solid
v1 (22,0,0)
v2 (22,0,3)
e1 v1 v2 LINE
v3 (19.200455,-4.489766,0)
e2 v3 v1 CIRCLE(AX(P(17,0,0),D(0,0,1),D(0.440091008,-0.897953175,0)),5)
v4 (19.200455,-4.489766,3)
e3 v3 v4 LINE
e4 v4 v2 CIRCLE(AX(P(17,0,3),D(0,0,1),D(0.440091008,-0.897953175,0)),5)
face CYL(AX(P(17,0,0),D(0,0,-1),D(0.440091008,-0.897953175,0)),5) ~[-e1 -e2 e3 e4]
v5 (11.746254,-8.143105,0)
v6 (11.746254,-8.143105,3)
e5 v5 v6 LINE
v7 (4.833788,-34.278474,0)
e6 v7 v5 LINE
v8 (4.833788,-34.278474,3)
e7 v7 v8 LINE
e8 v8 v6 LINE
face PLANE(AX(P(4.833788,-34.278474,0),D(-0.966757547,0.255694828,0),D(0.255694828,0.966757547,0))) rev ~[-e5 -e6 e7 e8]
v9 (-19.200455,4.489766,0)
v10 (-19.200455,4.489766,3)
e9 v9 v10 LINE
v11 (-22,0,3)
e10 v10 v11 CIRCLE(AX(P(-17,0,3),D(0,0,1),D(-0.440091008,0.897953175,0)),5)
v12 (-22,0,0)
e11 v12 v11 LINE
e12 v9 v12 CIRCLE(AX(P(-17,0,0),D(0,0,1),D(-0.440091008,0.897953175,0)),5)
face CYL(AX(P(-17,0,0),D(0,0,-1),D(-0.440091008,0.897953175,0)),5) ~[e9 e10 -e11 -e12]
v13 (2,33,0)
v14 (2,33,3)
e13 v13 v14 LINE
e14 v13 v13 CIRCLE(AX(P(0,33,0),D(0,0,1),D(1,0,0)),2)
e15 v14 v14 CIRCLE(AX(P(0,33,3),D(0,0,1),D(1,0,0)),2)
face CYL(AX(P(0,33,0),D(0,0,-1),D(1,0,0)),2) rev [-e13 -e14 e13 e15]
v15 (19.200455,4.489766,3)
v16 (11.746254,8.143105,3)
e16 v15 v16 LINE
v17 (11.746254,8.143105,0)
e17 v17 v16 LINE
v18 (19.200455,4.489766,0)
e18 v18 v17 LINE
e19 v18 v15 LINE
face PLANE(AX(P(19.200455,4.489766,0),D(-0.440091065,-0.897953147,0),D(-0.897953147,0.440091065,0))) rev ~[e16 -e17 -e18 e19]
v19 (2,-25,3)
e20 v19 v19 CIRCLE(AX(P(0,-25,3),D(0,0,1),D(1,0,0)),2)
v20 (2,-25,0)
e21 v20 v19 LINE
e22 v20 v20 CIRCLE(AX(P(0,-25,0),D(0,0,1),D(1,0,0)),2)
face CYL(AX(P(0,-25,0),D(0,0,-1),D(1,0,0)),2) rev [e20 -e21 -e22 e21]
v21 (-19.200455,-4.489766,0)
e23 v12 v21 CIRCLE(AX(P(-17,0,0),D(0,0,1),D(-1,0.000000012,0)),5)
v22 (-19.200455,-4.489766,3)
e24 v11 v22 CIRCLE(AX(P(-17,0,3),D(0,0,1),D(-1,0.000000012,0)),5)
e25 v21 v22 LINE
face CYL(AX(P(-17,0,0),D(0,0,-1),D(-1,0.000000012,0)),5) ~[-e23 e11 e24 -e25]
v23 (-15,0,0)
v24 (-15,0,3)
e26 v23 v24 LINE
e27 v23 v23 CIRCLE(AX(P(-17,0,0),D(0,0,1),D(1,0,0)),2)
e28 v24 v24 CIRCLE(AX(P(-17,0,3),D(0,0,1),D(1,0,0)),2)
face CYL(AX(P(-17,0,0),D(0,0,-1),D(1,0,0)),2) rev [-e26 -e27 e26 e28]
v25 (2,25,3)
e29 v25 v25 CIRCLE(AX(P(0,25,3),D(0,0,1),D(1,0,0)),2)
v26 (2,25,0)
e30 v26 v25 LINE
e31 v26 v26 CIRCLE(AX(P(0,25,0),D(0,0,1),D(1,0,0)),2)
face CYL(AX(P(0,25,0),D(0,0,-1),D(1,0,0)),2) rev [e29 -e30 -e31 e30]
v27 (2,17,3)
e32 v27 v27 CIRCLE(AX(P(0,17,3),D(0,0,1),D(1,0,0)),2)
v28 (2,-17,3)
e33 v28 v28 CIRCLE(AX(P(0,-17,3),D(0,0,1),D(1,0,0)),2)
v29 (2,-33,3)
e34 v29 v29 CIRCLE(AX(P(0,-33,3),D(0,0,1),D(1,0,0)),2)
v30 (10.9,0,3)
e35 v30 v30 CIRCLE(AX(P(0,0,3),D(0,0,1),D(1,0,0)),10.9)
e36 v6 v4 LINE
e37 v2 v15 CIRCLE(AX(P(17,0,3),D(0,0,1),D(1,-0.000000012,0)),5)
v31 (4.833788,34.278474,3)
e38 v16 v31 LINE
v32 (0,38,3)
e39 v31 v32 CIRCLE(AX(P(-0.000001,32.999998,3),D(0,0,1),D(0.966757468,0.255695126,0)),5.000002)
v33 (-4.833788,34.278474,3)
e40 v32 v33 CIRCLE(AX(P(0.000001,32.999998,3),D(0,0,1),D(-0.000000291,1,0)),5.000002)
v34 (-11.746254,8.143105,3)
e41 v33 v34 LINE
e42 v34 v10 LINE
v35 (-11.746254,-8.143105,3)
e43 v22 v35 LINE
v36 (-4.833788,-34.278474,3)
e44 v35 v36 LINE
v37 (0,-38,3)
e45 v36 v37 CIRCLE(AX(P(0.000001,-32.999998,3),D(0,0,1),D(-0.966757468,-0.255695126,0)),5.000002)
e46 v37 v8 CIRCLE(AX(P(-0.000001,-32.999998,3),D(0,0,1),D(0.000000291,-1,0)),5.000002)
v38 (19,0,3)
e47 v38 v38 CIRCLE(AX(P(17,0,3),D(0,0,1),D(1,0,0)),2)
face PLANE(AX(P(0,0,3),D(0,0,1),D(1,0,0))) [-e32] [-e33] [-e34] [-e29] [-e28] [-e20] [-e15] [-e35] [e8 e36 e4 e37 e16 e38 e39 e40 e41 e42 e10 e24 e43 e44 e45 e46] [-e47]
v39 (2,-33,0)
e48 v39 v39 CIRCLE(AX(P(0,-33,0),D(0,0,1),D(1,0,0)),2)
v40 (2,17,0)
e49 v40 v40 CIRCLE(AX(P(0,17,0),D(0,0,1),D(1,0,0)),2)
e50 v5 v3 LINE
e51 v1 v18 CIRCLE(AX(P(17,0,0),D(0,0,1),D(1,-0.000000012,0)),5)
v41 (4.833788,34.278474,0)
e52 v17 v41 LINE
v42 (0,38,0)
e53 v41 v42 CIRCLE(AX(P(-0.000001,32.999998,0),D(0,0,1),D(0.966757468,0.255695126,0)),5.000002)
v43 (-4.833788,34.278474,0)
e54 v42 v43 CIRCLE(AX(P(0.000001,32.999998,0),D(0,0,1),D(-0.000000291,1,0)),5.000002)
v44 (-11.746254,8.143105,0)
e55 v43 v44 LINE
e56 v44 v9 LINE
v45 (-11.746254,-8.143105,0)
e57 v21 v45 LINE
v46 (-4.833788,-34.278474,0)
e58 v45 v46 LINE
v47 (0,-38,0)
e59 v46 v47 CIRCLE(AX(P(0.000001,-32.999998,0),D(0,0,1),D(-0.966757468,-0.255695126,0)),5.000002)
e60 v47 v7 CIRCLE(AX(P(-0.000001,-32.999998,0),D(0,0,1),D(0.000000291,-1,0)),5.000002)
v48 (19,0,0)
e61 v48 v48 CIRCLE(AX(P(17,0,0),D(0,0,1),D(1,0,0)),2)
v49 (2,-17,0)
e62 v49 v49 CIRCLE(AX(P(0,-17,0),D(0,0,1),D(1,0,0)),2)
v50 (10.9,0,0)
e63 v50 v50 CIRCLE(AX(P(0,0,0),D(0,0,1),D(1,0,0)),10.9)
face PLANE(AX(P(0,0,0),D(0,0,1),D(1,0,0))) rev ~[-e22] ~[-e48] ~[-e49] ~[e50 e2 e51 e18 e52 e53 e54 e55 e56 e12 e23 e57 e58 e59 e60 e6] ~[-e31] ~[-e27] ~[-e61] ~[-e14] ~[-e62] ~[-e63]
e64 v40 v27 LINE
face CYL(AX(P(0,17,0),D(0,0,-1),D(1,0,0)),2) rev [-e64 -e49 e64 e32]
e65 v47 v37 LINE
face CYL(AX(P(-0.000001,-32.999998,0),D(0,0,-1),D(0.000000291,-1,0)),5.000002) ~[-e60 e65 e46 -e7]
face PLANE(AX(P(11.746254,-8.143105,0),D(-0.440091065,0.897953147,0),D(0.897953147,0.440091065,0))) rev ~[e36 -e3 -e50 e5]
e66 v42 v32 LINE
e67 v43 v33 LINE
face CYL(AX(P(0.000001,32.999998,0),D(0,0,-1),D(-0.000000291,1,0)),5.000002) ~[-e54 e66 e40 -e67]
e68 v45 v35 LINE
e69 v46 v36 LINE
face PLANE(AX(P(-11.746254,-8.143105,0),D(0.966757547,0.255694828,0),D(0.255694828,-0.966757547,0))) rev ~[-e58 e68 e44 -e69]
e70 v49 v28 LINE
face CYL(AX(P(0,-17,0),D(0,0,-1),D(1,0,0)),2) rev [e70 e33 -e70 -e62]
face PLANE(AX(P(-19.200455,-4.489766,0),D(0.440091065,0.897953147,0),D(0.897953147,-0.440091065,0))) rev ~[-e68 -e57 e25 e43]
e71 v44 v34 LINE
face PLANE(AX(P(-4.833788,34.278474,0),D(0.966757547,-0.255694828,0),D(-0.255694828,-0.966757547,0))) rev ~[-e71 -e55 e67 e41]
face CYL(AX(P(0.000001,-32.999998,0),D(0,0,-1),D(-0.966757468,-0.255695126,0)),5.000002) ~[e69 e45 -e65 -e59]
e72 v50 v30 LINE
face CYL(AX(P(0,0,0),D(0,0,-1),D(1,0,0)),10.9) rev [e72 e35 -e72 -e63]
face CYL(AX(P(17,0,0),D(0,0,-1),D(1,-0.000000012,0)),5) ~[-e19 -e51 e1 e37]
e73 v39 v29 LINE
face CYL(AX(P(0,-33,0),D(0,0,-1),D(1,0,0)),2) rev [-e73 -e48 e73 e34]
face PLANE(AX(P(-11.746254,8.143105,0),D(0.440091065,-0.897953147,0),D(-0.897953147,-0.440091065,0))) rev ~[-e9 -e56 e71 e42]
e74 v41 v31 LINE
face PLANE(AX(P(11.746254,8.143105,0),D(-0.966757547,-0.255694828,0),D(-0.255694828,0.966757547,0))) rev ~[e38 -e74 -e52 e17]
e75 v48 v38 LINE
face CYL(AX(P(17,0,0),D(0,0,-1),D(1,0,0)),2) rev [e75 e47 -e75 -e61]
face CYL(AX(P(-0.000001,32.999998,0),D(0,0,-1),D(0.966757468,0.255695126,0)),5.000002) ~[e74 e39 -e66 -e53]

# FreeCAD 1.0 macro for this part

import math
import FreeCAD as App
import Part
import Sketcher

V = App.Vector
Q = App.Units.Quantity

doc = App.newDocument("Part")
params = doc.addObject("Spreadsheet::Sheet", "Params")
for row, (alias, value) in enumerate([
    ("sketch1_diameter", "4 mm"),
    ("sketch1_radius", "5 mm"),
    ("sketch1_diameter2", "21.8 mm"),
    ("pad1_length", "3 mm"),
], start=1):
    params.set(f"A{row}", alias)
    params.set(f"B{row}", "=" + value)
    params.setAlias(f"B{row}", alias)

body = doc.addObject("PartDesign::Body", "Body")

# Sketch on XY plane
sketch1 = body.newObject("Sketcher::SketchObject", "Sketch")
sketch1.AttachmentSupport = (doc.getObject("XY_Plane"), [""])
sketch1.MapMode = "FlatFace"
sketch1.addGeometry(Part.LineSegment(V(-4.8, 34.3, 0), V(-11.7, 8.1, 0)), False)
sketch1.addGeometry(Part.LineSegment(V(-11.7, 8.1, 0), V(-19.2, 4.5, 0)), False)
sketch1.addGeometry(Part.ArcOfCircle(Part.Circle(V(-17, 0, 0), V(0, 0, 1), 5), math.radians(116), math.radians(180)), False)
sketch1.addGeometry(Part.ArcOfCircle(Part.Circle(V(-17, 0, 0), V(0, 0, 1), 5), math.radians(180), math.radians(244)), False)
sketch1.addGeometry(Part.LineSegment(V(-19.2, -4.5, 0), V(-11.7, -8.1, 0)), False)
sketch1.addGeometry(Part.LineSegment(V(-11.7, -8.1, 0), V(-4.8, -34.3, 0)), False)
sketch1.addGeometry(Part.ArcOfCircle(Part.Circle(V(0, -33, 0), V(0, 0, 1), 5), math.radians(-165), math.radians(-90)), False)
sketch1.addGeometry(Part.ArcOfCircle(Part.Circle(V(0, -33, 0), V(0, 0, 1), 5), math.radians(-90), math.radians(-15)), False)
sketch1.addGeometry(Part.LineSegment(V(4.8, -34.3, 0), V(11.7, -8.1, 0)), False)
sketch1.addGeometry(Part.LineSegment(V(11.7, -8.1, 0), V(19.2, -4.5, 0)), False)
sketch1.addGeometry(Part.ArcOfCircle(Part.Circle(V(17, 0, 0), V(0, 0, 1), 5), math.radians(-64), math.radians(0)), False)
sketch1.addGeometry(Part.ArcOfCircle(Part.Circle(V(17, 0, 0), V(0, 0, 1), 5), math.radians(0), math.radians(64)), False)
sketch1.addGeometry(Part.LineSegment(V(19.2, 4.5, 0), V(11.7, 8.1, 0)), False)
sketch1.addGeometry(Part.LineSegment(V(11.7, 8.1, 0), V(4.8, 34.3, 0)), False)
sketch1.addGeometry(Part.ArcOfCircle(Part.Circle(V(0, 33, 0), V(0, 0, 1), 5), math.radians(15), math.radians(90)), False)
sketch1.addGeometry(Part.ArcOfCircle(Part.Circle(V(0, 33, 0), V(0, 0, 1), 5), math.radians(90), math.radians(165)), False)
sketch1.addGeometry(Part.Circle(V(0, -33, 0), V(0, 0, 1), 2), False)
sketch1.addGeometry(Part.Circle(V(0, -25, 0), V(0, 0, 1), 2), False)
sketch1.addGeometry(Part.Circle(V(0, -17, 0), V(0, 0, 1), 2), False)
sketch1.addGeometry(Part.Circle(V(-17, 0, 0), V(0, 0, 1), 2), False)
sketch1.addGeometry(Part.Circle(V(0, 0, 0), V(0, 0, 1), 10.9), False)
sketch1.addGeometry(Part.Circle(V(0, 17, 0), V(0, 0, 1), 2), False)
sketch1.addGeometry(Part.Circle(V(17, 0, 0), V(0, 0, 1), 2), False)
sketch1.addGeometry(Part.Circle(V(0, 25, 0), V(0, 0, 1), 2), False)
sketch1.addGeometry(Part.Circle(V(0, 33, 0), V(0, 0, 1), 2), False)
sketch1.addConstraint(Sketcher.Constraint("Coincident", 0, 2, 1, 1))
sketch1.addConstraint(Sketcher.Constraint("Tangent", 1, 2, 2, 1))
sketch1.addConstraint(Sketcher.Constraint("Tangent", 2, 2, 3, 1))
sketch1.addConstraint(Sketcher.Constraint("Tangent", 3, 2, 4, 1))
sketch1.addConstraint(Sketcher.Constraint("Coincident", 4, 2, 5, 1))
sketch1.addConstraint(Sketcher.Constraint("Tangent", 5, 2, 6, 1))
sketch1.addConstraint(Sketcher.Constraint("Tangent", 6, 2, 7, 1))
sketch1.addConstraint(Sketcher.Constraint("Tangent", 7, 2, 8, 1))
sketch1.addConstraint(Sketcher.Constraint("Coincident", 8, 2, 9, 1))
sketch1.addConstraint(Sketcher.Constraint("Tangent", 9, 2, 10, 1))
sketch1.addConstraint(Sketcher.Constraint("Tangent", 10, 2, 11, 1))
sketch1.addConstraint(Sketcher.Constraint("Tangent", 11, 2, 12, 1))
sketch1.addConstraint(Sketcher.Constraint("Coincident", 12, 2, 13, 1))
sketch1.addConstraint(Sketcher.Constraint("Tangent", 13, 2, 14, 1))
sketch1.addConstraint(Sketcher.Constraint("Tangent", 14, 2, 15, 1))
sketch1.addConstraint(Sketcher.Constraint("Tangent", 15, 2, 0, 1))
sketch1.addConstraint(Sketcher.Constraint("Coincident", 20, 3, -1, 1))
sketch1.addConstraint(Sketcher.Constraint("Coincident", 16, 3, 6, 3))
sketch1.addConstraint(Sketcher.Constraint("Coincident", 19, 3, 2, 3))
sketch1.addConstraint(Sketcher.Constraint("Coincident", 22, 3, 10, 3))
sketch1.addConstraint(Sketcher.Constraint("Coincident", 24, 3, 14, 3))
sketch1.addConstraint(Sketcher.Constraint("Equal", 2, 3))
sketch1.addConstraint(Sketcher.Constraint("Equal", 6, 7))
sketch1.addConstraint(Sketcher.Constraint("Equal", 3, 10))
sketch1.addConstraint(Sketcher.Constraint("Equal", 10, 11))
sketch1.addConstraint(Sketcher.Constraint("Equal", 7, 14))
sketch1.addConstraint(Sketcher.Constraint("Equal", 14, 15))
sketch1.addConstraint(Sketcher.Constraint("Equal", 16, 17))
sketch1.addConstraint(Sketcher.Constraint("Equal", 17, 18))
sketch1.addConstraint(Sketcher.Constraint("Equal", 18, 19))
sketch1.addConstraint(Sketcher.Constraint("Equal", 19, 21))
sketch1.addConstraint(Sketcher.Constraint("Equal", 21, 22))
sketch1.addConstraint(Sketcher.Constraint("Equal", 22, 23))
sketch1.addConstraint(Sketcher.Constraint("Equal", 23, 24))
sketch1.addConstraint(Sketcher.Constraint("Symmetric", 2, 3, 10, 3, -1, 1))
sketch1.addConstraint(Sketcher.Constraint("Symmetric", 6, 3, 14, 3, -1, 1))
sketch1.addConstraint(Sketcher.Constraint("Symmetric", 18, 3, 21, 3, -1, 1))
sketch1.addConstraint(Sketcher.Constraint("Symmetric", 17, 3, 23, 3, -1, 1))
sketch1.addConstraint(Sketcher.Constraint("Symmetric", 0, 2, 8, 2, -1, 1))
sketch1.addConstraint(Sketcher.Constraint("Symmetric", 4, 2, 12, 2, -1, 1))
sketch1.addConstraint(Sketcher.Constraint("Symmetric", 5, 2, 7, 2, -2))
sketch1.addConstraint(Sketcher.Constraint("Symmetric", 3, 2, 9, 2, -2))
sketch1.addConstraint(Sketcher.Constraint("PointOnObject", 17, 3, -2))
sketch1.addConstraint(Sketcher.Constraint("PointOnObject", 18, 3, -2))
sketch1.addConstraint(Sketcher.Constraint("PointOnObject", 2, 2, -1))
sketch1.addConstraint(Sketcher.Constraint("PointOnObject", 6, 2, -2))
sketch1.addConstraint(Sketcher.Constraint("PointOnObject", 10, 2, -1))
sketch1.addConstraint(Sketcher.Constraint("PointOnObject", 14, 2, -2))
sketch1.addConstraint(Sketcher.Constraint("Diameter", 16, Q("4 mm")))
sketch1.addConstraint(Sketcher.Constraint("Radius", 2, Q("5 mm")))
sketch1.addConstraint(Sketcher.Constraint("Diameter", 20, Q("21.8 mm")))
sketch1.addConstraint(Sketcher.Constraint("DistanceX", 2, 3, -1, 1, Q("17 mm")))
sketch1.addConstraint(Sketcher.Constraint("DistanceY", 16, 3, -1, 1, Q("33 mm")))
sketch1.addConstraint(Sketcher.Constraint("DistanceY", 17, 3, -1, 1, Q("25 mm")))
sketch1.addConstraint(Sketcher.Constraint("DistanceY", 18, 3, -1, 1, Q("17 mm")))
sketch1.addConstraint(Sketcher.Constraint("DistanceY", 6, 2, -1, 1, Q("38 mm")))
sketch1.addConstraint(Sketcher.Constraint("DistanceX", 1, 2, 0, 2, Q("7.454201 mm")))
sketch1.addConstraint(Sketcher.Constraint("DistanceX", 5, 2, -1, 1, Q("4.833788 mm")))
sketch1.setExpression("Constraints[48]", "Params.sketch1_diameter")
sketch1.setExpression("Constraints[49]", "Params.sketch1_radius")
sketch1.setExpression("Constraints[50]", "Params.sketch1_diameter2")
pad1 = body.newObject("PartDesign::Pad", "Pad")
pad1.Profile = sketch1
pad1.setExpression("Length", "Params.pad1_length")

doc.recompute()
